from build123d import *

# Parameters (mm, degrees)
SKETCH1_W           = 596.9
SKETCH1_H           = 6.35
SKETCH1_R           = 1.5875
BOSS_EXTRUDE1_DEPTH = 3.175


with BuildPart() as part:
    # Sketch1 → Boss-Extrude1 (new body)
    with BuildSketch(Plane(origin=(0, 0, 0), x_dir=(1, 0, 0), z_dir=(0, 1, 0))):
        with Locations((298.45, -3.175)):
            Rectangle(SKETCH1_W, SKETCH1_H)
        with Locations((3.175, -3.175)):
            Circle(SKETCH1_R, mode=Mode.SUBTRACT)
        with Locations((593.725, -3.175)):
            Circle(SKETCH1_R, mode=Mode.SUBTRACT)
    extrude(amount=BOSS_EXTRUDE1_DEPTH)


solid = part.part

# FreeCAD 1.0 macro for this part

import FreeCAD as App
import Part
import Sketcher

V = App.Vector
Q = App.Units.Quantity

doc = App.newDocument("Part")
body = doc.addObject("PartDesign::Body", "Body")

# Sketch on XZ plane
sketch1 = body.newObject("Sketcher::SketchObject", "Sketch")
sketch1.AttachmentSupport = (doc.getObject("XZ_Plane"), [""])
sketch1.MapMode = "FlatFace"
sketch1.addGeometry(Part.LineSegment(V(0, 0, 0), V(0, 6.3, 0)), False)
sketch1.addGeometry(Part.LineSegment(V(0, 6.3, 0), V(596.9, 6.3, 0)), False)
sketch1.addGeometry(Part.LineSegment(V(596.9, 6.3, 0), V(596.9, 0, 0)), False)
sketch1.addGeometry(Part.LineSegment(V(596.9, 0, 0), V(0, 0, 0)), False)
sketch1.addGeometry(Part.Circle(V(3.2, 3.2, 0), V(0, 0, 1), 1.6), False)
sketch1.addGeometry(Part.Circle(V(593.7, 3.2, 0), V(0, 0, 1), 1.6), False)
sketch1.addConstraint(Sketcher.Constraint("Coincident", 0, 2, 1, 1))
sketch1.addConstraint(Sketcher.Constraint("Coincident", 1, 2, 2, 1))
sketch1.addConstraint(Sketcher.Constraint("Coincident", 2, 2, 3, 1))
sketch1.addConstraint(Sketcher.Constraint("Coincident", 3, 2, 0, 1))
sketch1.addConstraint(Sketcher.Constraint("Vertical", 0))
sketch1.addConstraint(Sketcher.Constraint("Horizontal", 1))
sketch1.addConstraint(Sketcher.Constraint("Vertical", 2))
sketch1.addConstraint(Sketcher.Constraint("Horizontal", 3))
sketch1.addConstraint(Sketcher.Constraint("Coincident", 3, 2, -1, 1))
sketch1.addConstraint(Sketcher.Constraint("Equal", 4, 5))
sketch1.addConstraint(Sketcher.Constraint("Horizontal", 4, 3, 5, 3))
sketch1.addConstraint(Sketcher.Constraint("Diameter", 4, Q("0.125 in")))
sketch1.addConstraint(Sketcher.Constraint("DistanceX", 1, 1, 1, 2, Q("23.5 in")))
sketch1.addConstraint(Sketcher.Constraint("DistanceY", 0, 1, 0, 2, Q("0.25 in")))
sketch1.addConstraint(Sketcher.Constraint("DistanceX", 4, 3, 5, 3, Q("23.25 in")))
sketch1.addConstraint(Sketcher.Constraint("DistanceX", -1, 1, 4, 3, Q("0.125 in")))
sketch1.addConstraint(Sketcher.Constraint("DistanceY", -1, 1, 4, 3, Q("0.125 in")))
pad1 = body.newObject("PartDesign::Pad", "Pad")
pad1.Profile = sketch1
pad1.Length = Q("0.125 in")
pad1.Reversed = True

doc.recompute()
